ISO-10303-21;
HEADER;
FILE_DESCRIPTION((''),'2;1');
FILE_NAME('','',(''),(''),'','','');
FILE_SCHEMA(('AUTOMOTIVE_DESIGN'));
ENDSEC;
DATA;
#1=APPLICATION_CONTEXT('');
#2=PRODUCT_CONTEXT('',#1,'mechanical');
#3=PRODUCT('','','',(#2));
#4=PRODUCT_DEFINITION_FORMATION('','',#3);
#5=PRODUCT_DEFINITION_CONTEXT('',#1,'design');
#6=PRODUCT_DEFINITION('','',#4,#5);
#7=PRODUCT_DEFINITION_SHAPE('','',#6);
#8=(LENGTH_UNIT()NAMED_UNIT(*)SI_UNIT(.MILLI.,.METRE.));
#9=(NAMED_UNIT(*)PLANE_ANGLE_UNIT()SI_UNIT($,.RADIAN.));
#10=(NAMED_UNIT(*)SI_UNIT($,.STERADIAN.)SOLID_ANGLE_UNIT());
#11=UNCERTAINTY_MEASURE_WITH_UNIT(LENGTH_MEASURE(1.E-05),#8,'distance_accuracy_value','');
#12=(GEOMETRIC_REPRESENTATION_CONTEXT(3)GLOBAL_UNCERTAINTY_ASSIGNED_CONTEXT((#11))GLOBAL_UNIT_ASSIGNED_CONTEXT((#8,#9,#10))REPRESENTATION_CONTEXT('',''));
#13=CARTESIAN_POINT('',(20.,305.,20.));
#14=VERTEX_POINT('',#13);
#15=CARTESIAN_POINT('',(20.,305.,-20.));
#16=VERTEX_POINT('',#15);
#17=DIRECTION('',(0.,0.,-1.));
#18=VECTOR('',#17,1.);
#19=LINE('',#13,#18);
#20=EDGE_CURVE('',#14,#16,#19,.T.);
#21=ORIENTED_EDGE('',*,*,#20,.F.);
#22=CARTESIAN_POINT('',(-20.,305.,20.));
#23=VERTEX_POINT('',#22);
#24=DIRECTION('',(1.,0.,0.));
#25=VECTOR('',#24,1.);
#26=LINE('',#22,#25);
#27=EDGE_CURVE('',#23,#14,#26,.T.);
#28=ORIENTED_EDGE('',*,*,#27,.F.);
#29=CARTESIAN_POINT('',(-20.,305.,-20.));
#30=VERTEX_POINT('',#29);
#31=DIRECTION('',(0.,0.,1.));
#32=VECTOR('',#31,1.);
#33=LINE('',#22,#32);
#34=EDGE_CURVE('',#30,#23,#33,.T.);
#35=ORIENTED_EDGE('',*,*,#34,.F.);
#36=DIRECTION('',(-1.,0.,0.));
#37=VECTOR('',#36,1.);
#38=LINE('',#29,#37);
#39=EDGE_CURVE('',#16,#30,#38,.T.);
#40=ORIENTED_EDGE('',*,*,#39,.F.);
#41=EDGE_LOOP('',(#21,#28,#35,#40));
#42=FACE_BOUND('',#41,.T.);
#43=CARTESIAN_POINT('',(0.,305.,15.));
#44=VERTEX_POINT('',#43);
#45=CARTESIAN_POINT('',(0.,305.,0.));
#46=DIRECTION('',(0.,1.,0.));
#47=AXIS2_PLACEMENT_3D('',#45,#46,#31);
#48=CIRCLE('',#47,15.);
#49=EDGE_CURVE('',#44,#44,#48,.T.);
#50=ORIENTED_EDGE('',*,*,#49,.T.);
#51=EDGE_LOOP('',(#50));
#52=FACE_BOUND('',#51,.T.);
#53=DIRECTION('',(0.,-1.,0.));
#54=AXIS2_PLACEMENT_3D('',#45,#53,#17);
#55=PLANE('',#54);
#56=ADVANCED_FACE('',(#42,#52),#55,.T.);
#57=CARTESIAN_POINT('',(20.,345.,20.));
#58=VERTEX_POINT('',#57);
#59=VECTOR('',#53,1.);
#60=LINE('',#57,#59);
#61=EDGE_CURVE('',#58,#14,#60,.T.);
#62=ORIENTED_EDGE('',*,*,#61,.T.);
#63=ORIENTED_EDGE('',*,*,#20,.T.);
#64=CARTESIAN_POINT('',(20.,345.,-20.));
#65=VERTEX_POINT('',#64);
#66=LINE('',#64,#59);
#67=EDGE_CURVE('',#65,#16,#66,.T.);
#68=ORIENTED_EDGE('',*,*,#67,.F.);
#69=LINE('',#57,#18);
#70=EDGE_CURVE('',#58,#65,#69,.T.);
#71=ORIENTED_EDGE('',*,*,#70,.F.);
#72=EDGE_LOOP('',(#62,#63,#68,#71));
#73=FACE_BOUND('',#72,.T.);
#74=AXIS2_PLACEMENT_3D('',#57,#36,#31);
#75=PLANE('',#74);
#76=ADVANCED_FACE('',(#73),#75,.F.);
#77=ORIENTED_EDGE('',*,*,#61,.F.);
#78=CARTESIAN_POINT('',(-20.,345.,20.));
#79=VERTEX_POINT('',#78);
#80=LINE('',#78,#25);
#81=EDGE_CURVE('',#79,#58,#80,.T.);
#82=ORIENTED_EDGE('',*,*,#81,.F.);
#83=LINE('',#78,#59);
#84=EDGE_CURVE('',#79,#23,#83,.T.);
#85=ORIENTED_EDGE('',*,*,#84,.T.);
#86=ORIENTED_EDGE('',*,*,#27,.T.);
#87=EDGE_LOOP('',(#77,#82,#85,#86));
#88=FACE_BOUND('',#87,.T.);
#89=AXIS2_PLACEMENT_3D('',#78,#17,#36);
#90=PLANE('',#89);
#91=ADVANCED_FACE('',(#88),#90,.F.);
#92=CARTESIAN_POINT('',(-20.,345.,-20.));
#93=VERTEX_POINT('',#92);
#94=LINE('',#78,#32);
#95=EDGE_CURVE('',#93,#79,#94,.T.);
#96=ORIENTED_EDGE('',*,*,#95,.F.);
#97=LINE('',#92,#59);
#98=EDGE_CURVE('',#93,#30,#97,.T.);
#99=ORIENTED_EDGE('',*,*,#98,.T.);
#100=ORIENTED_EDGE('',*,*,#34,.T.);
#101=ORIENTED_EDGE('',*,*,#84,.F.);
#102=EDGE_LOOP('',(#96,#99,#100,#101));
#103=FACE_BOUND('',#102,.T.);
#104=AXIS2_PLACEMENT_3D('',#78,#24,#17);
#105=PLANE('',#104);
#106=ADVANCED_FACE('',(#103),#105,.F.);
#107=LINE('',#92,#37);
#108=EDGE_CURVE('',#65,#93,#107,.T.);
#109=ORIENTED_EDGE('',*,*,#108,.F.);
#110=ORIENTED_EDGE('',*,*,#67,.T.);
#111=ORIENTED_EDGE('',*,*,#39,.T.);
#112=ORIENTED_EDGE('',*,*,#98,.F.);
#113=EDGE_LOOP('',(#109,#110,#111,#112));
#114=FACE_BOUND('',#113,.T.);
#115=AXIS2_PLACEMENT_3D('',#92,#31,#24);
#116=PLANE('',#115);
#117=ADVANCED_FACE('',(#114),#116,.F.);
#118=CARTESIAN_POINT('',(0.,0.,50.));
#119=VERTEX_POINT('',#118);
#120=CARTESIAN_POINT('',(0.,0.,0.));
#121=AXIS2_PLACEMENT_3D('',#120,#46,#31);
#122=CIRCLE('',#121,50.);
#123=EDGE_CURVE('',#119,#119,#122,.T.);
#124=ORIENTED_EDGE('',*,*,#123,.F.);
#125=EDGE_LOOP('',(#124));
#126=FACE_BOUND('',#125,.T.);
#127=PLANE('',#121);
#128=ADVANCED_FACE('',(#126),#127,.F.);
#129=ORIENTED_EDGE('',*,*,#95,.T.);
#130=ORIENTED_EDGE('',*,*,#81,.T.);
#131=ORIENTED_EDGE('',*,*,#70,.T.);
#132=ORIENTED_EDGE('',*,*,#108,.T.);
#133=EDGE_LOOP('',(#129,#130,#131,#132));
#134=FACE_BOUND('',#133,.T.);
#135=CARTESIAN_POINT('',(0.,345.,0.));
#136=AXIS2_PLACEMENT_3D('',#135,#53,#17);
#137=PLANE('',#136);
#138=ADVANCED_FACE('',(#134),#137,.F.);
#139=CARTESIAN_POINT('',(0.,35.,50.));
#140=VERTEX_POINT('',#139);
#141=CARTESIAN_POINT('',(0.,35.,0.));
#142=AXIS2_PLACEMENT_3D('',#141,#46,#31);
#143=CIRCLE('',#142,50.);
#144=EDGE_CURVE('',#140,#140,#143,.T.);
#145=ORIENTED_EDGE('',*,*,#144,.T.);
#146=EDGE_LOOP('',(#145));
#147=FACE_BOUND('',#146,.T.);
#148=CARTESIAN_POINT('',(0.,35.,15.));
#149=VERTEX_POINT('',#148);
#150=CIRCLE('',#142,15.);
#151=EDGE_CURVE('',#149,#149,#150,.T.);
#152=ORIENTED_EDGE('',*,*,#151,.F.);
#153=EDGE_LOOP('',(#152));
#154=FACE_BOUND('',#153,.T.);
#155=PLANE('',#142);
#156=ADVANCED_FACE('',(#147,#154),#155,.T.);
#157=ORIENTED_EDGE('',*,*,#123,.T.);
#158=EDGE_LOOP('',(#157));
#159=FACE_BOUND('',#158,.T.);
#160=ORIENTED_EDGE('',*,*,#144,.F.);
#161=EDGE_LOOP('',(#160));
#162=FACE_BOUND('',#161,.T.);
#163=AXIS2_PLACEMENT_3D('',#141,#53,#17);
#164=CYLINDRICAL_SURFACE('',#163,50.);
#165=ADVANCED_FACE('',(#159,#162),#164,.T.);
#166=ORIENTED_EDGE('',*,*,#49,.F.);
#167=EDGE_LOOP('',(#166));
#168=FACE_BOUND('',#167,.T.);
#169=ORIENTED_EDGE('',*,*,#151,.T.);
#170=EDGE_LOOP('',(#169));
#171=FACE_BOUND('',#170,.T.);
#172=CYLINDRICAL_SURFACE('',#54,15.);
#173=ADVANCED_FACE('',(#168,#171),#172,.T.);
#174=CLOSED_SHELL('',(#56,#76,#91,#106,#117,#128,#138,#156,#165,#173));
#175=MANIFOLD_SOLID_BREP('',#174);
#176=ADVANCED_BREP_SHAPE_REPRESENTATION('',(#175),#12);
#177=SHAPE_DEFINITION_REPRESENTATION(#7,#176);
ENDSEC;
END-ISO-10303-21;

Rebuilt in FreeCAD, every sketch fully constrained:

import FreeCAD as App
import Part
import Sketcher

V = App.Vector


def add_polygon(sketch, points):
    """Adds a closed chain of lines whose ends are joined by coincident constraints."""
    first, n = sketch.GeometryCount, len(points)
    for a, b in zip(points, points[1:] + points[:1]):
        sketch.addGeometry(Part.LineSegment(App.Vector(*a, 0), App.Vector(*b, 0)), False)
    for i in range(n):
        sketch.addConstraint(Sketcher.Constraint("Coincident", first + i, 2, first + (i + 1) % n, 1))

doc = App.newDocument("Part")
body = doc.addObject("PartDesign::Body", "Body")

# Sketch on XZ plane
sketch1 = doc.addObject("Sketcher::SketchObject", "Sketch")
body.addObject(sketch1)
sketch1.AttachmentSupport = (doc.XZ_Plane, [""])
sketch1.MapMode = "FlatFace"
sketch1.addGeometry(Part.Circle(V(0, 0, 0), V(0, 0, 1), 50), False)
sketch1.addConstraint([
    Sketcher.Constraint("Coincident", 0, 3, -1, 1),
    Sketcher.Constraint("Diameter", 0, 100.0),
])
pad1 = doc.addObject("PartDesign::Pad", "Pad")
body.addObject(pad1)
pad1.Profile = sketch1
pad1.Length = 35
pad1.Reversed = True

# Sketch on XZ plane
sketch2 = doc.addObject("Sketcher::SketchObject", "Sketch001")
body.addObject(sketch2)
sketch2.AttachmentSupport = (doc.XZ_Plane, [""])
sketch2.MapMode = "FlatFace"
sketch2.AttachmentOffset = App.Placement(V(0, 0, -35), App.Rotation())
sketch2.addGeometry(Part.Circle(V(0, 0, 0), V(0, 0, 1), 15), False)
sketch2.addConstraint([
    Sketcher.Constraint("Coincident", 0, 3, -1, 1),
    Sketcher.Constraint("Diameter", 0, 30.0),
])
pad2 = doc.addObject("PartDesign::Pad", "Pad001")
body.addObject(pad2)
pad2.Profile = sketch2
pad2.Length = 270
pad2.Reversed = True

# Sketch on XZ plane
sketch3 = doc.addObject("Sketcher::SketchObject", "Sketch002")
body.addObject(sketch3)
sketch3.AttachmentSupport = (doc.XZ_Plane, [""])
sketch3.MapMode = "FlatFace"
sketch3.AttachmentOffset = App.Placement(V(0, 0, -305), App.Rotation())
add_polygon(sketch3, [(-20, -20), (-20, 20), (20, 20), (20, -20)])  # lines 0-3
sketch3.addConstraint([
    Sketcher.Constraint("Vertical", 0),
    Sketcher.Constraint("Horizontal", 1),
    Sketcher.Constraint("Vertical", 2),
    Sketcher.Constraint("Horizontal", 3),
    Sketcher.Constraint("Symmetric", 0, 2, 2, 2, -1, 1),
    Sketcher.Constraint("Equal", 3, 0),
    Sketcher.Constraint("DistanceX", 1, 1, 1, 2, 40.0),
])
pad3 = doc.addObject("PartDesign::Pad", "Pad002")
body.addObject(pad3)
pad3.Profile = sketch3
pad3.Length = 40
pad3.Reversed = True

doc.recompute()
